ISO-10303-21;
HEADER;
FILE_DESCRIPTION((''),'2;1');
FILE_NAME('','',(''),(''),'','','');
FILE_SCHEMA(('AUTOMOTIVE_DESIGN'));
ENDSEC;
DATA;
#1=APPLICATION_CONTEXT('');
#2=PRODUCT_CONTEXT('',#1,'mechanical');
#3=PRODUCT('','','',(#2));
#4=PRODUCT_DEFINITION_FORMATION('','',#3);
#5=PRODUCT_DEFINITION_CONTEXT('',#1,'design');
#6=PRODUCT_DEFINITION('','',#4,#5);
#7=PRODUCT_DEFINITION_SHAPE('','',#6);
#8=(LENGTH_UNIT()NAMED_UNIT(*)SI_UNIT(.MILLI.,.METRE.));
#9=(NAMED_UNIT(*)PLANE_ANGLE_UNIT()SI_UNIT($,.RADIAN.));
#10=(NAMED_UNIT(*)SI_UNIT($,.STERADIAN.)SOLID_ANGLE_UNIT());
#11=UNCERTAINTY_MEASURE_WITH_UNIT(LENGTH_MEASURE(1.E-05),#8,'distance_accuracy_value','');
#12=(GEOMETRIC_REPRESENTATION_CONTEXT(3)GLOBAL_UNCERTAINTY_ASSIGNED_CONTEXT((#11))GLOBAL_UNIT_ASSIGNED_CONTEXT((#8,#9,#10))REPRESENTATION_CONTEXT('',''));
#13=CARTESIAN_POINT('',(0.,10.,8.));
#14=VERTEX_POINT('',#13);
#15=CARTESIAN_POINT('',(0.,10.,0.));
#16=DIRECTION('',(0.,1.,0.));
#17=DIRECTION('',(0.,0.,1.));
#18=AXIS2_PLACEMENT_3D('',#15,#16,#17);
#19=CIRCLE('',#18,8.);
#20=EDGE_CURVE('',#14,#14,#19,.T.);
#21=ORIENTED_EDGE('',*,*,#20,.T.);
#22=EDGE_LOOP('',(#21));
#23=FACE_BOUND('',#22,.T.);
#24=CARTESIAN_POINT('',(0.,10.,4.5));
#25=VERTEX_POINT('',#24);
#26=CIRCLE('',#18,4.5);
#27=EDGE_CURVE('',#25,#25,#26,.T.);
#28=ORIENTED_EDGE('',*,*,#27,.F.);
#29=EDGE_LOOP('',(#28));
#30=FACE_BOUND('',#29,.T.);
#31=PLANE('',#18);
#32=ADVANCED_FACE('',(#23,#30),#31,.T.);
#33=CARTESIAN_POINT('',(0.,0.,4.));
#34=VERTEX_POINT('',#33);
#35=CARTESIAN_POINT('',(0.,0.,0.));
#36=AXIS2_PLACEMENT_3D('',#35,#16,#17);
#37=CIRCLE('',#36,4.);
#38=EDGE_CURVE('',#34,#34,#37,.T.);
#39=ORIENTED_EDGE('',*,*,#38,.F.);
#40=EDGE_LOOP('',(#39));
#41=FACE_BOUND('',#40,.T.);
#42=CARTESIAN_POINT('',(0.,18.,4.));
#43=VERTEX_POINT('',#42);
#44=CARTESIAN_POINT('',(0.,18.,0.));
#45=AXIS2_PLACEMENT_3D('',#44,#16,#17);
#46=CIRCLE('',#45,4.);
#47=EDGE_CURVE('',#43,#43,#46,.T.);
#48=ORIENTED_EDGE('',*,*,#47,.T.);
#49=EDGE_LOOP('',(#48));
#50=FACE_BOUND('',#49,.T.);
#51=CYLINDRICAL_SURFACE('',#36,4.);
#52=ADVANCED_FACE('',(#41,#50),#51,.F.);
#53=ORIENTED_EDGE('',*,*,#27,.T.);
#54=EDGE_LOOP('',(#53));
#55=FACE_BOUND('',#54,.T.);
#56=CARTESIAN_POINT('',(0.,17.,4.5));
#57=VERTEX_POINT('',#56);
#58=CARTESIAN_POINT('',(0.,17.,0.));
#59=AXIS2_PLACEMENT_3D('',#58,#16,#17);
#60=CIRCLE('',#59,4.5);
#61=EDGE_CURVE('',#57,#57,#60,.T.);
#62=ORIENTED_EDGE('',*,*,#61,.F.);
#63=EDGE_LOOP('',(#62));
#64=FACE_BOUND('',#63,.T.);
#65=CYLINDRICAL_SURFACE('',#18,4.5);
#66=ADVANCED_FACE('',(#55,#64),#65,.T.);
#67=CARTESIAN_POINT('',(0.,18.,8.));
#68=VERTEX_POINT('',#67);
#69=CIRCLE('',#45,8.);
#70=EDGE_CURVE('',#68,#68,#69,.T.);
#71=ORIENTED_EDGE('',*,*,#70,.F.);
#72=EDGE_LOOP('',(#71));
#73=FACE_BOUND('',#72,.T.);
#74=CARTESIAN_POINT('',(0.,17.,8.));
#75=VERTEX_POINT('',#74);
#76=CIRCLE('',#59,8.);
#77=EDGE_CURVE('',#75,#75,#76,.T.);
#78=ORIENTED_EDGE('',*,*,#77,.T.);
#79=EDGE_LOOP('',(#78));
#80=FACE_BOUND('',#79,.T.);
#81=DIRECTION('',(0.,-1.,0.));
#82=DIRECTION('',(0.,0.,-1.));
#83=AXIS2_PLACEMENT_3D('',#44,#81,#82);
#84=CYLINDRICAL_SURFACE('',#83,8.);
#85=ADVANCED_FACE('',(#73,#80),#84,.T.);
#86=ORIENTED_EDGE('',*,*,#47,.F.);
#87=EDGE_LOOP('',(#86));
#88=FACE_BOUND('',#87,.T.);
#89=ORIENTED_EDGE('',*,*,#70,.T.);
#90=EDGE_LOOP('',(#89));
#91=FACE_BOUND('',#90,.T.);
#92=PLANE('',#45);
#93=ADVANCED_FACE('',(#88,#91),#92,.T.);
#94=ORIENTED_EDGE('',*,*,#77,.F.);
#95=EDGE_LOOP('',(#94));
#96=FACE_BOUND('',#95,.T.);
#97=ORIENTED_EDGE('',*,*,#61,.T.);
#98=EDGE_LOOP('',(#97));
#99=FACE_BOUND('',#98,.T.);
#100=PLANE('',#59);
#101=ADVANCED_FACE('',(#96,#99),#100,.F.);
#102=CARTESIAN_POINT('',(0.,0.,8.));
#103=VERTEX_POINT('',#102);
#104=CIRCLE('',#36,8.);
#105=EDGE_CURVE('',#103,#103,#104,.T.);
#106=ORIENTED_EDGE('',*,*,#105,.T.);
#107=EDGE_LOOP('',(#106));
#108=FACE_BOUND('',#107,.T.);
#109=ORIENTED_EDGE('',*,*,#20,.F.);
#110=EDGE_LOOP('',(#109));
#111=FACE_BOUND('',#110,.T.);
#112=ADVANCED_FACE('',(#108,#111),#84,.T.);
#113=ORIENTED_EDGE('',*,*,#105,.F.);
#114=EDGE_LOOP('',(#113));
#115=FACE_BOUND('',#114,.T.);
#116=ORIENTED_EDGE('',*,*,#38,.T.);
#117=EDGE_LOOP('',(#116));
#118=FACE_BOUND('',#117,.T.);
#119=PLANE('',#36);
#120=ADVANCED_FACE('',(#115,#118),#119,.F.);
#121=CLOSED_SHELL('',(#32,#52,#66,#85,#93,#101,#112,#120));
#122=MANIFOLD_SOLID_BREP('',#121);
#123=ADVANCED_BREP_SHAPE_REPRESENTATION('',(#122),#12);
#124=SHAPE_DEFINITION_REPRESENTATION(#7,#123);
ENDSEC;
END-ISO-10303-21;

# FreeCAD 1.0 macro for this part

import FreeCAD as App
import Part
import Sketcher

V = App.Vector
Q = App.Units.Quantity

doc = App.newDocument("Part")
body = doc.addObject("PartDesign::Body", "Body")

# Sketch on XZ plane
sketch1 = body.newObject("Sketcher::SketchObject", "Sketch")
sketch1.AttachmentSupport = (doc.getObject("XZ_Plane"), [""])
sketch1.MapMode = "FlatFace"
sketch1.addGeometry(Part.Circle(V(0, 0, 0), V(0, 0, 1), 8), False)
sketch1.addConstraint([
    Sketcher.Constraint("Coincident", 0, 3, -1, 1),
    Sketcher.Constraint("Diameter", 0, Q("16 mm")),
])
pad1 = body.newObject("PartDesign::Pad", "Pad")
pad1.Profile = sketch1
pad1.Length = 18
pad1.Reversed = True

# Sketch on XZ plane
sketch2 = body.newObject("Sketcher::SketchObject", "Sketch001")
sketch2.AttachmentSupport = (doc.getObject("XZ_Plane"), [""])
sketch2.MapMode = "FlatFace"
sketch2.AttachmentOffset = App.Placement(V(0, 0, -18), App.Rotation())
sketch2.addGeometry(Part.Circle(V(0, 0, 0), V(0, 0, 1), 4), False)
sketch2.addConstraint([
    Sketcher.Constraint("Coincident", 0, 3, -1, 1),
    Sketcher.Constraint("Diameter", 0, Q("8 mm")),
])
pocket1 = body.newObject("PartDesign::Pocket", "Pocket")
pocket1.Profile = sketch2
pocket1.Type = "ThroughAll"
pocket1.Reversed = True

# Sketch on XZ plane
sketch3 = body.newObject("Sketcher::SketchObject", "Sketch002")
sketch3.AttachmentSupport = (doc.getObject("XZ_Plane"), [""])
sketch3.MapMode = "FlatFace"
sketch3.AttachmentOffset = App.Placement(V(0, 0, -10), App.Rotation())
sketch3.addGeometry([
    Part.Circle(V(0, 0, 0), V(0, 0, 1), 8),
    Part.Circle(V(0, 0, 0), V(0, 0, 1), 4.5),
], False)
sketch3.addConstraint([
    Sketcher.Constraint("Coincident", 0, 3, -1, 1),
    Sketcher.Constraint("Coincident", 1, 3, -1, 1),
    Sketcher.Constraint("Diameter", 0, Q("16 mm")),
    Sketcher.Constraint("Diameter", 1, Q("9 mm")),
])
pocket2 = body.newObject("PartDesign::Pocket", "Pocket001")
pocket2.Profile = sketch3
pocket2.Length = 7

doc.recompute()
